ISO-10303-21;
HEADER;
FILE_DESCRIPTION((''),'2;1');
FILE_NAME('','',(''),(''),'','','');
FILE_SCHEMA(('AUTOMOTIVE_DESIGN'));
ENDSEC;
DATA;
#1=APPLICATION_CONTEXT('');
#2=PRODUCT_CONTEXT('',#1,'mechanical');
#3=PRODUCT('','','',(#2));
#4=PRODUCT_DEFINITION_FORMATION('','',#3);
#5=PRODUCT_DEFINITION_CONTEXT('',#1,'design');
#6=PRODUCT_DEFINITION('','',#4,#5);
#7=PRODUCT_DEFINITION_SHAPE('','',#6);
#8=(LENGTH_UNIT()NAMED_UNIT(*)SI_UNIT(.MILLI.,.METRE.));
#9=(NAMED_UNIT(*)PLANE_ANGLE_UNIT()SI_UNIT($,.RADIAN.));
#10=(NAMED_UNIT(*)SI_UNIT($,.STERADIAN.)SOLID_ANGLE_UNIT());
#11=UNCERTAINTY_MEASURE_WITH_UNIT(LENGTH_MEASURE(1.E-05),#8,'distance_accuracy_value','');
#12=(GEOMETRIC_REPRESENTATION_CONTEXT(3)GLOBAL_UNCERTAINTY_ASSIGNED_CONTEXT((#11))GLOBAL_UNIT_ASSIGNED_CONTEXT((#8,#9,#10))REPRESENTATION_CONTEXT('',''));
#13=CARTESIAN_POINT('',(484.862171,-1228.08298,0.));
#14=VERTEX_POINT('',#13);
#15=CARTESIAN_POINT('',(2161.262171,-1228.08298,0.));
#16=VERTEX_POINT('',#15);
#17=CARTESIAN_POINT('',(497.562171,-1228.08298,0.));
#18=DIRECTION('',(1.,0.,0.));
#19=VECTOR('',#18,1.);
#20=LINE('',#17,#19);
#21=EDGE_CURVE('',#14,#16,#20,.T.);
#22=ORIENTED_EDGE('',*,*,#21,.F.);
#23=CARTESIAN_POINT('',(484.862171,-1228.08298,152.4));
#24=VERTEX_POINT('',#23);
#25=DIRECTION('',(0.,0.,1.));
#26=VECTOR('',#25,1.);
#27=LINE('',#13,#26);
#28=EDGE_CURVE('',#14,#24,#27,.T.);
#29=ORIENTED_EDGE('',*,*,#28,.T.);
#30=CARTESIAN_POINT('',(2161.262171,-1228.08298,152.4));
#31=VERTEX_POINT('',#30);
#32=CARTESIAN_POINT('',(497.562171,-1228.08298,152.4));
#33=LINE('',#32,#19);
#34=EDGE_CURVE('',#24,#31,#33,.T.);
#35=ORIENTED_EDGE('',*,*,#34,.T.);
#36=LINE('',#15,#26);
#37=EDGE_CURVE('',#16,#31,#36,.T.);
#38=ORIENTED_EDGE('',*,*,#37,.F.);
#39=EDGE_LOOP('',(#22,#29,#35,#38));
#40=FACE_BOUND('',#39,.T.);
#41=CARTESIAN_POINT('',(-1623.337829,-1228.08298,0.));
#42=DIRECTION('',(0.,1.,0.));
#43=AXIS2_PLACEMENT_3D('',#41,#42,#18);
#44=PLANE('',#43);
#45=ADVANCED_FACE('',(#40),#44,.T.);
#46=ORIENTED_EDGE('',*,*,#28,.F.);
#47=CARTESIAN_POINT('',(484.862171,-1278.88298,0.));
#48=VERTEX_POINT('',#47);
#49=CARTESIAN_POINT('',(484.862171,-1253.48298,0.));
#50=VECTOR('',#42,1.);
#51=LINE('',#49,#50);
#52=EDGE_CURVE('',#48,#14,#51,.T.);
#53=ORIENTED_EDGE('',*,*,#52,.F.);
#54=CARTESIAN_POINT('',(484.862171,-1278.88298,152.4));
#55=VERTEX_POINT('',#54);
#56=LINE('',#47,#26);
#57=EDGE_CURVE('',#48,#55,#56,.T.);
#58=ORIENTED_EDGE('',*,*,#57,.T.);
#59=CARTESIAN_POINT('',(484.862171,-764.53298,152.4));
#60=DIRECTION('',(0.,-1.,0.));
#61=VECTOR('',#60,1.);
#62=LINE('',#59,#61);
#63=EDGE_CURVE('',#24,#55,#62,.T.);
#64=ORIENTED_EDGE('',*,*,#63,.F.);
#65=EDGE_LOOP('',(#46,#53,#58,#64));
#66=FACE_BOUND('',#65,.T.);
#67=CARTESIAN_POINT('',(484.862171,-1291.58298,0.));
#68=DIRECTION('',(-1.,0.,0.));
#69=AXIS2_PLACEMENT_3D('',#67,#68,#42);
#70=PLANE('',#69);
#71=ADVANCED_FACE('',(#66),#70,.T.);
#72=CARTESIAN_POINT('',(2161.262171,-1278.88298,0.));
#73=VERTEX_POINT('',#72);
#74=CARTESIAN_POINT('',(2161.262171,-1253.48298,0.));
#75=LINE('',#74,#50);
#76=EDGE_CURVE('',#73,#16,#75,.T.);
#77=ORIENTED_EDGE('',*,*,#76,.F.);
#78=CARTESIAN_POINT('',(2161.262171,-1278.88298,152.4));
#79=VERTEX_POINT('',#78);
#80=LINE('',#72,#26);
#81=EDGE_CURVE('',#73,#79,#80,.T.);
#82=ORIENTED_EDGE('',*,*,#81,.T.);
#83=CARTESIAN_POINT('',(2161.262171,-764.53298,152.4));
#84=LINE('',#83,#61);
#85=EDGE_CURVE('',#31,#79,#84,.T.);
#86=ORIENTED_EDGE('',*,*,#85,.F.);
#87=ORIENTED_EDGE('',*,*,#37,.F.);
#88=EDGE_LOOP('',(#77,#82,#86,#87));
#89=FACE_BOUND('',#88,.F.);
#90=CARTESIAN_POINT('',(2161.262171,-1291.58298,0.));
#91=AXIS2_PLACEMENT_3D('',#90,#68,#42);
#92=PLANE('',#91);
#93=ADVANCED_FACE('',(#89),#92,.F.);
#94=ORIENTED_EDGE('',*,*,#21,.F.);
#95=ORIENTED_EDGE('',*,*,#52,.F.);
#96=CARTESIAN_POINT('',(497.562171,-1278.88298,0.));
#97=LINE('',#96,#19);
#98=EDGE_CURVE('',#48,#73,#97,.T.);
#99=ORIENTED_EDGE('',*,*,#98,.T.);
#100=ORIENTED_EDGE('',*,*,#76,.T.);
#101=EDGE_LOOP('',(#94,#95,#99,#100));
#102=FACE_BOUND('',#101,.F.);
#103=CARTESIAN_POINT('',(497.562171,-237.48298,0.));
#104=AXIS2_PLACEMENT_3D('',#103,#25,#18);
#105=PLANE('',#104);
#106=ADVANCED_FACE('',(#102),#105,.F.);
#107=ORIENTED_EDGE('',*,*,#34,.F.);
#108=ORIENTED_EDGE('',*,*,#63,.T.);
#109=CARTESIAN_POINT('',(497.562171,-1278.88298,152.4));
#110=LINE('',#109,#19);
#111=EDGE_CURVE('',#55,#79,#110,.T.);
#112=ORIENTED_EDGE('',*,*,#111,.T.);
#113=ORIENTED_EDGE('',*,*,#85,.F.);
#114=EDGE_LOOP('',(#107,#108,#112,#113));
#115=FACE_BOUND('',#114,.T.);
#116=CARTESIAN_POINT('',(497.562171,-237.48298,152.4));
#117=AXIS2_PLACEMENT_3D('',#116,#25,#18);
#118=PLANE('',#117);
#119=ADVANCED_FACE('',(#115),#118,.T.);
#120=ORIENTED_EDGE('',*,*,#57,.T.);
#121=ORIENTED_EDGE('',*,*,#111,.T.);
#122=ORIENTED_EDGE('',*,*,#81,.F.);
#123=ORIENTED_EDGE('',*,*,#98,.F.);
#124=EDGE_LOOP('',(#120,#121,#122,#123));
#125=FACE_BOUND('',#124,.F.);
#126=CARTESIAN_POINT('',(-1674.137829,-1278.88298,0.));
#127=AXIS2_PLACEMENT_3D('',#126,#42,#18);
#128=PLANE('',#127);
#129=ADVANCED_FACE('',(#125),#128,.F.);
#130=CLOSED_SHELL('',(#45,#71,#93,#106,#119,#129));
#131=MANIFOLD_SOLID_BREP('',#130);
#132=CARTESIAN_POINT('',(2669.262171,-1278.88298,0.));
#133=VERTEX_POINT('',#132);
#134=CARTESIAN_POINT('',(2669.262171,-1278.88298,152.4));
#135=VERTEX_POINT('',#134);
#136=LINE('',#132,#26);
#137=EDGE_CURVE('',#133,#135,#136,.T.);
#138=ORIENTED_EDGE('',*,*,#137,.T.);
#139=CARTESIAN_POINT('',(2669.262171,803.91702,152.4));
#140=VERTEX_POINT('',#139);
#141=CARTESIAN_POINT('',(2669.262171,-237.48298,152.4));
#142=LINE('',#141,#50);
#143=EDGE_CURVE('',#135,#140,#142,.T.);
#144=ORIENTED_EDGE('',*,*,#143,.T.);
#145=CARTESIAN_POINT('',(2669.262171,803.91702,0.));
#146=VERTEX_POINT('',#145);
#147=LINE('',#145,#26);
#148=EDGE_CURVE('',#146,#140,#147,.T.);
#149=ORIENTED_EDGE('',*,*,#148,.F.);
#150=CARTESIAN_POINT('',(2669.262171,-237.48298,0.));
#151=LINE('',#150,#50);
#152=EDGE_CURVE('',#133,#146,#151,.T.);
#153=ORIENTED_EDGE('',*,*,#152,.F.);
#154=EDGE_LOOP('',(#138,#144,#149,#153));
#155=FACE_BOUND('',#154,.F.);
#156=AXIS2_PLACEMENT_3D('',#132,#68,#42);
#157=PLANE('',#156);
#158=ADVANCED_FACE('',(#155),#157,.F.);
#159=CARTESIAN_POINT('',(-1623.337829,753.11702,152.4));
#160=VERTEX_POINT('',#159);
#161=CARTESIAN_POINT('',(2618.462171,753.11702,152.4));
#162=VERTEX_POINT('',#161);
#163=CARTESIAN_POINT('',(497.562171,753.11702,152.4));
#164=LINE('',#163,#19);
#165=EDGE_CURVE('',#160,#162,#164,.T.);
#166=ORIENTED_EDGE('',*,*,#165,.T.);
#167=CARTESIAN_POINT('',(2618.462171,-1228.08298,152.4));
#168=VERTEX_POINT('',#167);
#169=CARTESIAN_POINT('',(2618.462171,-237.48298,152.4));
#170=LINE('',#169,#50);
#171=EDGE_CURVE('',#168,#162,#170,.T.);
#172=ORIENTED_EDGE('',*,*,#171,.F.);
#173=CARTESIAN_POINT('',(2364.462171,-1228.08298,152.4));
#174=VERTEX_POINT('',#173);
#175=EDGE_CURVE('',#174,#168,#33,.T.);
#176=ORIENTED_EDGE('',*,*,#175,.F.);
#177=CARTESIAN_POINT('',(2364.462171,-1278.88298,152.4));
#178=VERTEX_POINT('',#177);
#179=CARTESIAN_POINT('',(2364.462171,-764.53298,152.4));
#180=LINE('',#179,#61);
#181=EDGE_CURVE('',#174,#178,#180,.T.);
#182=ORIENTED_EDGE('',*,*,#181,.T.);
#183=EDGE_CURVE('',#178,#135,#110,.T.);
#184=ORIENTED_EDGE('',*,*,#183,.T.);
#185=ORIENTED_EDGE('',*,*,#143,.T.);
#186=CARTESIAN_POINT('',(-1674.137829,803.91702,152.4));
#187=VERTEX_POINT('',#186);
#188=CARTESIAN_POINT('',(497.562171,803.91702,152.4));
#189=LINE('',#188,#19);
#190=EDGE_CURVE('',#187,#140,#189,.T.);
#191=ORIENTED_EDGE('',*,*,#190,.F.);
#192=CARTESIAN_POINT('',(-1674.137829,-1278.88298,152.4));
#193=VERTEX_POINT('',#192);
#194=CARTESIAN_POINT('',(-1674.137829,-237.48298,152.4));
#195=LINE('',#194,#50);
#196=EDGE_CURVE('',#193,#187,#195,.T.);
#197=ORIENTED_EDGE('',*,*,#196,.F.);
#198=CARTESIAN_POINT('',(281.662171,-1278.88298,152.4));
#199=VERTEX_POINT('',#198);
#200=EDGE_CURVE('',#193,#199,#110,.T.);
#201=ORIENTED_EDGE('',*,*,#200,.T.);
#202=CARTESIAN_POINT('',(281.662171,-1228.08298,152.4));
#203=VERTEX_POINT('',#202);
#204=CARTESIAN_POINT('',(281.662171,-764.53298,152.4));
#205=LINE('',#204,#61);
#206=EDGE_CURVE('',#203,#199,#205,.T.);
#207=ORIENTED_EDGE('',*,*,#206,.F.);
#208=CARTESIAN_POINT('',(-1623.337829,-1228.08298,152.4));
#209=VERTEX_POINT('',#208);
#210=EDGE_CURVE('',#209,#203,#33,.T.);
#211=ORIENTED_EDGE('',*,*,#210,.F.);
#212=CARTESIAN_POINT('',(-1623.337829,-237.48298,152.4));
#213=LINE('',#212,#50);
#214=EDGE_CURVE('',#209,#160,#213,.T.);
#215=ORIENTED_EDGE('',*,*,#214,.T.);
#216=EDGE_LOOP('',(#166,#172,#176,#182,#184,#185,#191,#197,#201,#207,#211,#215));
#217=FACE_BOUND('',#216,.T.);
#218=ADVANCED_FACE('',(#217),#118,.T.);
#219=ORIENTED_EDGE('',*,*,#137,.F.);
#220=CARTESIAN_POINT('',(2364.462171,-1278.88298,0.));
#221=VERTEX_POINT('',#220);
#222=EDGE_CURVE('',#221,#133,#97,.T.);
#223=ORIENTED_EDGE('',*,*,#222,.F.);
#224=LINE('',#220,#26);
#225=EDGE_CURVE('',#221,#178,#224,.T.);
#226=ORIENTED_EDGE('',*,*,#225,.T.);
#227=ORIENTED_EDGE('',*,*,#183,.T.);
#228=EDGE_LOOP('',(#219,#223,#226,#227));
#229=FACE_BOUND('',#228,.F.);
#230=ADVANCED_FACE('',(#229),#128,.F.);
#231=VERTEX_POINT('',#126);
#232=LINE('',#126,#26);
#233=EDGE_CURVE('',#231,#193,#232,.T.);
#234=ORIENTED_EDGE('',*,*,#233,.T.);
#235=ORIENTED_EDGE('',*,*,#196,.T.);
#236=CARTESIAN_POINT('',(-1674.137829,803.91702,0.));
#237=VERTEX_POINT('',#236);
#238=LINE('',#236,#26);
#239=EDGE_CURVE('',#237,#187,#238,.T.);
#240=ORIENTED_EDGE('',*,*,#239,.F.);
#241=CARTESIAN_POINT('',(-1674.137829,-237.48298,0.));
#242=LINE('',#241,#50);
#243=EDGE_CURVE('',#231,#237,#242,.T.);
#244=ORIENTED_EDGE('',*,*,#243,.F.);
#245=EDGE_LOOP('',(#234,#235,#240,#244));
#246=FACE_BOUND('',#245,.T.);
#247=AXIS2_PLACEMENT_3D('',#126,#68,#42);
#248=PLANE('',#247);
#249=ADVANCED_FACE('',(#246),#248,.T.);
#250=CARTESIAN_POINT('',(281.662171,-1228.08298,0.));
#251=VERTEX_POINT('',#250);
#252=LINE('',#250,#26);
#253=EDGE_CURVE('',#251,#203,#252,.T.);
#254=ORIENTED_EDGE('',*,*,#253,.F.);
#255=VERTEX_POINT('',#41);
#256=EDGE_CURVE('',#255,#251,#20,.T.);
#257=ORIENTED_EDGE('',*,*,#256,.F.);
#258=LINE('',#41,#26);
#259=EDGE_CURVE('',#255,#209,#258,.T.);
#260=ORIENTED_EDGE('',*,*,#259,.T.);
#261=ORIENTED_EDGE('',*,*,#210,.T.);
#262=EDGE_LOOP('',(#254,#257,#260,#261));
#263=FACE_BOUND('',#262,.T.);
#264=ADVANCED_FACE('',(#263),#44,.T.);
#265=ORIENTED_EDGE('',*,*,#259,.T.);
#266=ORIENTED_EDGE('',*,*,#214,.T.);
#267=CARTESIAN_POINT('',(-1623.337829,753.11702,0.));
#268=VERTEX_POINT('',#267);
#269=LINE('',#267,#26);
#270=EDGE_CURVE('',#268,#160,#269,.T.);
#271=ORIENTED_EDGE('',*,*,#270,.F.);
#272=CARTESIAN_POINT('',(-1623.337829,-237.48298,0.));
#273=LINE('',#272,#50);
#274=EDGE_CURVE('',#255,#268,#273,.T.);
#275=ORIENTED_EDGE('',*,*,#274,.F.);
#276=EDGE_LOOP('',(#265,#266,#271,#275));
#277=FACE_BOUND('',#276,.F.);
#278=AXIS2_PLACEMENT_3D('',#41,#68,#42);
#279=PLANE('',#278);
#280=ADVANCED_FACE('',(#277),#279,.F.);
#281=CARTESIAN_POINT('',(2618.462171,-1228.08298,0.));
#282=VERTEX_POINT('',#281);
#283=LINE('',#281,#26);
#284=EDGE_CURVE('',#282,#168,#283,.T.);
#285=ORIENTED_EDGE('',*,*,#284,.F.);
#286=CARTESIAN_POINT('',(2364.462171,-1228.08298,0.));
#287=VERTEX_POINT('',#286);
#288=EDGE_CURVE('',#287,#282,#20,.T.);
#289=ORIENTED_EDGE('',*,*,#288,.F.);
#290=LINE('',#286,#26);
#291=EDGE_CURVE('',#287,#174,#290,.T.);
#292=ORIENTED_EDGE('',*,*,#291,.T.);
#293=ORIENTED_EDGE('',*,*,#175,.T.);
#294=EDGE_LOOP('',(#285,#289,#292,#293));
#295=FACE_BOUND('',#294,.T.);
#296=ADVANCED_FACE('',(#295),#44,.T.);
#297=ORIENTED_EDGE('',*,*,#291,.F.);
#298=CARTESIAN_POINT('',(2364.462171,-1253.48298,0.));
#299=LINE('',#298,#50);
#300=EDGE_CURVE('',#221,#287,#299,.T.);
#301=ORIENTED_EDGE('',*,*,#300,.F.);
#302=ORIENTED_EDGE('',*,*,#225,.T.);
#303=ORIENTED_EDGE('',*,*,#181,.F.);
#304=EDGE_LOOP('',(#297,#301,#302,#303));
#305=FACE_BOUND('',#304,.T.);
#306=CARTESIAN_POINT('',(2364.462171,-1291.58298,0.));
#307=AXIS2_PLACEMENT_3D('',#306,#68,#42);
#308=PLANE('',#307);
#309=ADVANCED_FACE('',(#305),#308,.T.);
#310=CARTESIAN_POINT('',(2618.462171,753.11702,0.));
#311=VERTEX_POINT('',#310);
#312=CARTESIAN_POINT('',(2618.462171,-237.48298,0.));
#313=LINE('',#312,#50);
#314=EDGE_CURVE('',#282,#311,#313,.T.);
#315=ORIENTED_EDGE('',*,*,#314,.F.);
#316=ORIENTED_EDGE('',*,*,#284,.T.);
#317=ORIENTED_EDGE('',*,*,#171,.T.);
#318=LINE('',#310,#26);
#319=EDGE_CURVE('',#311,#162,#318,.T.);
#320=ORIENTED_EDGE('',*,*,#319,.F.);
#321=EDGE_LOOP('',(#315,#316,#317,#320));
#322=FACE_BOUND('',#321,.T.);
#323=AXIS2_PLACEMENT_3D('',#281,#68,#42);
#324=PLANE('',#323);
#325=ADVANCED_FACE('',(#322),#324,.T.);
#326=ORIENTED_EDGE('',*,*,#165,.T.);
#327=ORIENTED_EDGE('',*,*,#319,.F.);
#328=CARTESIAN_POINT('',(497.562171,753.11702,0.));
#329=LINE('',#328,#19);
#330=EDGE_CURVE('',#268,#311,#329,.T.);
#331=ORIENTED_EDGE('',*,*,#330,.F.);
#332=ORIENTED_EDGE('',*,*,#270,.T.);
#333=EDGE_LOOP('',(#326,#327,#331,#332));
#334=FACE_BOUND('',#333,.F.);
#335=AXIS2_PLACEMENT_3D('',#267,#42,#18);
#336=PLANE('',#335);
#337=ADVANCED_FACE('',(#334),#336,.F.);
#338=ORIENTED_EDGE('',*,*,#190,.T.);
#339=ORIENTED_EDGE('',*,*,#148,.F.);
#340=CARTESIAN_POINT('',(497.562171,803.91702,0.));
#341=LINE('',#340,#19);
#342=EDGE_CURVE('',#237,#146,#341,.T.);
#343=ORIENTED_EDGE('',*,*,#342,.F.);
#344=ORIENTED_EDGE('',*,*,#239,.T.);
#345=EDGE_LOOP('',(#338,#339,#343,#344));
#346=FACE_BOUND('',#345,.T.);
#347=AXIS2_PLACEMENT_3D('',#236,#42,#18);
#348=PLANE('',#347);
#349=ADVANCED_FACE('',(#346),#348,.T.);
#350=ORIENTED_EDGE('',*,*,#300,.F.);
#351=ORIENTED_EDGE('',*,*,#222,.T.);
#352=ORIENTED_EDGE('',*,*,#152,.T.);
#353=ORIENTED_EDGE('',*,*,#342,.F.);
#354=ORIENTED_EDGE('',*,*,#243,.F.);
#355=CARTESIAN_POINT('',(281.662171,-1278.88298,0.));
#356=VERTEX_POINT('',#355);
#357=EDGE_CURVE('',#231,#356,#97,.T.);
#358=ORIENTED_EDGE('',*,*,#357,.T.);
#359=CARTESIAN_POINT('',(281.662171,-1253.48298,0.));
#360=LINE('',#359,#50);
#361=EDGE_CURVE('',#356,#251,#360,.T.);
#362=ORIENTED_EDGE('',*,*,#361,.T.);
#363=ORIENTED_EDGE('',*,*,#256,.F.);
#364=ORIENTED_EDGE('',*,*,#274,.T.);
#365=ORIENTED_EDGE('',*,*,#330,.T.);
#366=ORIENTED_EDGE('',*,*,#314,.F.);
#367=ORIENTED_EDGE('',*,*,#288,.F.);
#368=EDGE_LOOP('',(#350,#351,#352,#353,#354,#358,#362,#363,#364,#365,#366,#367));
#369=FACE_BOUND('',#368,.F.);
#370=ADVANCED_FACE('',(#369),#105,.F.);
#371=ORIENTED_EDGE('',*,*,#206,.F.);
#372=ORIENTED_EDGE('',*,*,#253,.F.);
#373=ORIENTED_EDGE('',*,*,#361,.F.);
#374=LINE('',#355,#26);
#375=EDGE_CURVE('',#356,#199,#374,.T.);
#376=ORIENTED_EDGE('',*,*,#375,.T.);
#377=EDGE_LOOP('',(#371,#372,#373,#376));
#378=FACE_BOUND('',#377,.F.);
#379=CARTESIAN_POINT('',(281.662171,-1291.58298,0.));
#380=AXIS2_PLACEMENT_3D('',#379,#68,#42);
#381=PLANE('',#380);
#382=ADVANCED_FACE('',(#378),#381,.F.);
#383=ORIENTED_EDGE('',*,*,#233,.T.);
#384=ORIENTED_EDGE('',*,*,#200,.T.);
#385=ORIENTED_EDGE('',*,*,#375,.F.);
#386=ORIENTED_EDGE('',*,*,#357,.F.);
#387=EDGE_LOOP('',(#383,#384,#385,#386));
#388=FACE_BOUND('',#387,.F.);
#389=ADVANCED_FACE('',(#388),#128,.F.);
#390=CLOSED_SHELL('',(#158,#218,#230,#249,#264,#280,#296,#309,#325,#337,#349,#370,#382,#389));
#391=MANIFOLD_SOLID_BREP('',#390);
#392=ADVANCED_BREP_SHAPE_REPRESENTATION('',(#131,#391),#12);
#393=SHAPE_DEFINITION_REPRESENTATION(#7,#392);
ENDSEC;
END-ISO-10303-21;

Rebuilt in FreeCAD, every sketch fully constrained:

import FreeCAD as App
import Part
import Sketcher

V = App.Vector
Q = App.Units.Quantity


def add_polygon(sketch, points):
    """Adds a closed chain of lines whose ends are joined by coincident constraints."""
    first, n = sketch.GeometryCount, len(points)
    for a, b in zip(points, points[1:] + points[:1]):
        sketch.addGeometry(Part.LineSegment(App.Vector(*a, 0), App.Vector(*b, 0)), False)
    for i in range(n):
        sketch.addConstraint(Sketcher.Constraint("Coincident", first + i, 2, first + (i + 1) % n, 1))

doc = App.newDocument("Part")
body = doc.addObject("PartDesign::Body", "Body")
body.AllowCompound = True

# Sketch on XY plane
sketch1 = body.newObject("Sketcher::SketchObject", "Sketch")
sketch1.AttachmentSupport = (doc.getObject("XY_Plane"), [""])
sketch1.MapMode = "FlatFace"
add_polygon(sketch1, [(-1674.137829, 803.91702), (-1674.137829, -1278.88298), (2669.262171, -1278.88298), (2669.262171, 803.91702)])  # lines 0-3
add_polygon(sketch1, [(2618.462171, -1228.08298), (-1623.337829, -1228.08298), (-1623.337829, 753.11702), (2618.462171, 753.11702)])  # lines 4-7
sketch1.addConstraint([
    Sketcher.Constraint("Vertical", 0),
    Sketcher.Constraint("Horizontal", 1),
    Sketcher.Constraint("Vertical", 2),
    Sketcher.Constraint("Horizontal", 3),
    Sketcher.Constraint("Horizontal", 4),
    Sketcher.Constraint("Vertical", 5),
    Sketcher.Constraint("Horizontal", 6),
    Sketcher.Constraint("Vertical", 7),
    Sketcher.Constraint("DistanceX", 1, 1, 1, 2, Q("171 in")),
    Sketcher.Constraint("DistanceX", 4, 2, 4, 1, Q("167 in")),
    Sketcher.Constraint("DistanceY", 0, 2, 0, 1, Q("82 in")),
    Sketcher.Constraint("DistanceY", 5, 1, 5, 2, Q("78 in")),
    Sketcher.Constraint("DistanceX", 0, 2, 4, 2, Q("2 in")),
    Sketcher.Constraint("DistanceY", 0, 2, 4, 2, Q("2 in")),
    Sketcher.Constraint("DistanceX", 0, 2, -1, 1, Q("1674.137829 mm")),
    Sketcher.Constraint("DistanceY", 0, 2, -1, 1, Q("1278.88298 mm")),
])
pad1 = body.newObject("PartDesign::Pad", "Pad")
pad1.Profile = sketch1
pad1.Length = Q("6 in")

# Sketch on XY plane
sketch2 = body.newObject("Sketcher::SketchObject", "Sketch001")
sketch2.AttachmentSupport = (doc.getObject("XY_Plane"), [""])
sketch2.MapMode = "FlatFace"
add_polygon(sketch2, [(281.662171, -1215.38298), (281.662171, -1291.58298), (484.862171, -1291.58298), (484.862171, -1215.38298)])  # lines 0-3
add_polygon(sketch2, [(2161.262171, -1215.38298), (2161.262171, -1291.58298), (2364.462171, -1291.58298), (2364.462171, -1215.38298)])  # lines 4-7
sketch2.addConstraint([
    Sketcher.Constraint("Vertical", 0),
    Sketcher.Constraint("Horizontal", 1),
    Sketcher.Constraint("Vertical", 2),
    Sketcher.Constraint("Horizontal", 3),
    Sketcher.Constraint("Vertical", 4),
    Sketcher.Constraint("Horizontal", 5),
    Sketcher.Constraint("Vertical", 6),
    Sketcher.Constraint("Horizontal", 7),
    Sketcher.Constraint("Horizontal", 1, 2, 4, 2),
    Sketcher.Constraint("Horizontal", 3, 2, 6, 2),
    Sketcher.Constraint("Equal", 3, 5),
    Sketcher.Constraint("DistanceX", 1, 1, 1, 2, Q("8 in")),
    Sketcher.Constraint("DistanceY", 0, 2, 0, 1, Q("3 in")),
    Sketcher.Constraint("DistanceX", 1, 2, 4, 2, Q("66 in")),
    Sketcher.Constraint("DistanceX", -1, 1, 0, 2, Q("281.662171 mm")),
    Sketcher.Constraint("DistanceY", 0, 2, -1, 1, Q("1291.58298 mm")),
])
pocket1 = body.newObject("PartDesign::Pocket", "Pocket")
pocket1.Profile = sketch2
pocket1.Type = "ThroughAll"
pocket1.Reversed = True

doc.recompute()
